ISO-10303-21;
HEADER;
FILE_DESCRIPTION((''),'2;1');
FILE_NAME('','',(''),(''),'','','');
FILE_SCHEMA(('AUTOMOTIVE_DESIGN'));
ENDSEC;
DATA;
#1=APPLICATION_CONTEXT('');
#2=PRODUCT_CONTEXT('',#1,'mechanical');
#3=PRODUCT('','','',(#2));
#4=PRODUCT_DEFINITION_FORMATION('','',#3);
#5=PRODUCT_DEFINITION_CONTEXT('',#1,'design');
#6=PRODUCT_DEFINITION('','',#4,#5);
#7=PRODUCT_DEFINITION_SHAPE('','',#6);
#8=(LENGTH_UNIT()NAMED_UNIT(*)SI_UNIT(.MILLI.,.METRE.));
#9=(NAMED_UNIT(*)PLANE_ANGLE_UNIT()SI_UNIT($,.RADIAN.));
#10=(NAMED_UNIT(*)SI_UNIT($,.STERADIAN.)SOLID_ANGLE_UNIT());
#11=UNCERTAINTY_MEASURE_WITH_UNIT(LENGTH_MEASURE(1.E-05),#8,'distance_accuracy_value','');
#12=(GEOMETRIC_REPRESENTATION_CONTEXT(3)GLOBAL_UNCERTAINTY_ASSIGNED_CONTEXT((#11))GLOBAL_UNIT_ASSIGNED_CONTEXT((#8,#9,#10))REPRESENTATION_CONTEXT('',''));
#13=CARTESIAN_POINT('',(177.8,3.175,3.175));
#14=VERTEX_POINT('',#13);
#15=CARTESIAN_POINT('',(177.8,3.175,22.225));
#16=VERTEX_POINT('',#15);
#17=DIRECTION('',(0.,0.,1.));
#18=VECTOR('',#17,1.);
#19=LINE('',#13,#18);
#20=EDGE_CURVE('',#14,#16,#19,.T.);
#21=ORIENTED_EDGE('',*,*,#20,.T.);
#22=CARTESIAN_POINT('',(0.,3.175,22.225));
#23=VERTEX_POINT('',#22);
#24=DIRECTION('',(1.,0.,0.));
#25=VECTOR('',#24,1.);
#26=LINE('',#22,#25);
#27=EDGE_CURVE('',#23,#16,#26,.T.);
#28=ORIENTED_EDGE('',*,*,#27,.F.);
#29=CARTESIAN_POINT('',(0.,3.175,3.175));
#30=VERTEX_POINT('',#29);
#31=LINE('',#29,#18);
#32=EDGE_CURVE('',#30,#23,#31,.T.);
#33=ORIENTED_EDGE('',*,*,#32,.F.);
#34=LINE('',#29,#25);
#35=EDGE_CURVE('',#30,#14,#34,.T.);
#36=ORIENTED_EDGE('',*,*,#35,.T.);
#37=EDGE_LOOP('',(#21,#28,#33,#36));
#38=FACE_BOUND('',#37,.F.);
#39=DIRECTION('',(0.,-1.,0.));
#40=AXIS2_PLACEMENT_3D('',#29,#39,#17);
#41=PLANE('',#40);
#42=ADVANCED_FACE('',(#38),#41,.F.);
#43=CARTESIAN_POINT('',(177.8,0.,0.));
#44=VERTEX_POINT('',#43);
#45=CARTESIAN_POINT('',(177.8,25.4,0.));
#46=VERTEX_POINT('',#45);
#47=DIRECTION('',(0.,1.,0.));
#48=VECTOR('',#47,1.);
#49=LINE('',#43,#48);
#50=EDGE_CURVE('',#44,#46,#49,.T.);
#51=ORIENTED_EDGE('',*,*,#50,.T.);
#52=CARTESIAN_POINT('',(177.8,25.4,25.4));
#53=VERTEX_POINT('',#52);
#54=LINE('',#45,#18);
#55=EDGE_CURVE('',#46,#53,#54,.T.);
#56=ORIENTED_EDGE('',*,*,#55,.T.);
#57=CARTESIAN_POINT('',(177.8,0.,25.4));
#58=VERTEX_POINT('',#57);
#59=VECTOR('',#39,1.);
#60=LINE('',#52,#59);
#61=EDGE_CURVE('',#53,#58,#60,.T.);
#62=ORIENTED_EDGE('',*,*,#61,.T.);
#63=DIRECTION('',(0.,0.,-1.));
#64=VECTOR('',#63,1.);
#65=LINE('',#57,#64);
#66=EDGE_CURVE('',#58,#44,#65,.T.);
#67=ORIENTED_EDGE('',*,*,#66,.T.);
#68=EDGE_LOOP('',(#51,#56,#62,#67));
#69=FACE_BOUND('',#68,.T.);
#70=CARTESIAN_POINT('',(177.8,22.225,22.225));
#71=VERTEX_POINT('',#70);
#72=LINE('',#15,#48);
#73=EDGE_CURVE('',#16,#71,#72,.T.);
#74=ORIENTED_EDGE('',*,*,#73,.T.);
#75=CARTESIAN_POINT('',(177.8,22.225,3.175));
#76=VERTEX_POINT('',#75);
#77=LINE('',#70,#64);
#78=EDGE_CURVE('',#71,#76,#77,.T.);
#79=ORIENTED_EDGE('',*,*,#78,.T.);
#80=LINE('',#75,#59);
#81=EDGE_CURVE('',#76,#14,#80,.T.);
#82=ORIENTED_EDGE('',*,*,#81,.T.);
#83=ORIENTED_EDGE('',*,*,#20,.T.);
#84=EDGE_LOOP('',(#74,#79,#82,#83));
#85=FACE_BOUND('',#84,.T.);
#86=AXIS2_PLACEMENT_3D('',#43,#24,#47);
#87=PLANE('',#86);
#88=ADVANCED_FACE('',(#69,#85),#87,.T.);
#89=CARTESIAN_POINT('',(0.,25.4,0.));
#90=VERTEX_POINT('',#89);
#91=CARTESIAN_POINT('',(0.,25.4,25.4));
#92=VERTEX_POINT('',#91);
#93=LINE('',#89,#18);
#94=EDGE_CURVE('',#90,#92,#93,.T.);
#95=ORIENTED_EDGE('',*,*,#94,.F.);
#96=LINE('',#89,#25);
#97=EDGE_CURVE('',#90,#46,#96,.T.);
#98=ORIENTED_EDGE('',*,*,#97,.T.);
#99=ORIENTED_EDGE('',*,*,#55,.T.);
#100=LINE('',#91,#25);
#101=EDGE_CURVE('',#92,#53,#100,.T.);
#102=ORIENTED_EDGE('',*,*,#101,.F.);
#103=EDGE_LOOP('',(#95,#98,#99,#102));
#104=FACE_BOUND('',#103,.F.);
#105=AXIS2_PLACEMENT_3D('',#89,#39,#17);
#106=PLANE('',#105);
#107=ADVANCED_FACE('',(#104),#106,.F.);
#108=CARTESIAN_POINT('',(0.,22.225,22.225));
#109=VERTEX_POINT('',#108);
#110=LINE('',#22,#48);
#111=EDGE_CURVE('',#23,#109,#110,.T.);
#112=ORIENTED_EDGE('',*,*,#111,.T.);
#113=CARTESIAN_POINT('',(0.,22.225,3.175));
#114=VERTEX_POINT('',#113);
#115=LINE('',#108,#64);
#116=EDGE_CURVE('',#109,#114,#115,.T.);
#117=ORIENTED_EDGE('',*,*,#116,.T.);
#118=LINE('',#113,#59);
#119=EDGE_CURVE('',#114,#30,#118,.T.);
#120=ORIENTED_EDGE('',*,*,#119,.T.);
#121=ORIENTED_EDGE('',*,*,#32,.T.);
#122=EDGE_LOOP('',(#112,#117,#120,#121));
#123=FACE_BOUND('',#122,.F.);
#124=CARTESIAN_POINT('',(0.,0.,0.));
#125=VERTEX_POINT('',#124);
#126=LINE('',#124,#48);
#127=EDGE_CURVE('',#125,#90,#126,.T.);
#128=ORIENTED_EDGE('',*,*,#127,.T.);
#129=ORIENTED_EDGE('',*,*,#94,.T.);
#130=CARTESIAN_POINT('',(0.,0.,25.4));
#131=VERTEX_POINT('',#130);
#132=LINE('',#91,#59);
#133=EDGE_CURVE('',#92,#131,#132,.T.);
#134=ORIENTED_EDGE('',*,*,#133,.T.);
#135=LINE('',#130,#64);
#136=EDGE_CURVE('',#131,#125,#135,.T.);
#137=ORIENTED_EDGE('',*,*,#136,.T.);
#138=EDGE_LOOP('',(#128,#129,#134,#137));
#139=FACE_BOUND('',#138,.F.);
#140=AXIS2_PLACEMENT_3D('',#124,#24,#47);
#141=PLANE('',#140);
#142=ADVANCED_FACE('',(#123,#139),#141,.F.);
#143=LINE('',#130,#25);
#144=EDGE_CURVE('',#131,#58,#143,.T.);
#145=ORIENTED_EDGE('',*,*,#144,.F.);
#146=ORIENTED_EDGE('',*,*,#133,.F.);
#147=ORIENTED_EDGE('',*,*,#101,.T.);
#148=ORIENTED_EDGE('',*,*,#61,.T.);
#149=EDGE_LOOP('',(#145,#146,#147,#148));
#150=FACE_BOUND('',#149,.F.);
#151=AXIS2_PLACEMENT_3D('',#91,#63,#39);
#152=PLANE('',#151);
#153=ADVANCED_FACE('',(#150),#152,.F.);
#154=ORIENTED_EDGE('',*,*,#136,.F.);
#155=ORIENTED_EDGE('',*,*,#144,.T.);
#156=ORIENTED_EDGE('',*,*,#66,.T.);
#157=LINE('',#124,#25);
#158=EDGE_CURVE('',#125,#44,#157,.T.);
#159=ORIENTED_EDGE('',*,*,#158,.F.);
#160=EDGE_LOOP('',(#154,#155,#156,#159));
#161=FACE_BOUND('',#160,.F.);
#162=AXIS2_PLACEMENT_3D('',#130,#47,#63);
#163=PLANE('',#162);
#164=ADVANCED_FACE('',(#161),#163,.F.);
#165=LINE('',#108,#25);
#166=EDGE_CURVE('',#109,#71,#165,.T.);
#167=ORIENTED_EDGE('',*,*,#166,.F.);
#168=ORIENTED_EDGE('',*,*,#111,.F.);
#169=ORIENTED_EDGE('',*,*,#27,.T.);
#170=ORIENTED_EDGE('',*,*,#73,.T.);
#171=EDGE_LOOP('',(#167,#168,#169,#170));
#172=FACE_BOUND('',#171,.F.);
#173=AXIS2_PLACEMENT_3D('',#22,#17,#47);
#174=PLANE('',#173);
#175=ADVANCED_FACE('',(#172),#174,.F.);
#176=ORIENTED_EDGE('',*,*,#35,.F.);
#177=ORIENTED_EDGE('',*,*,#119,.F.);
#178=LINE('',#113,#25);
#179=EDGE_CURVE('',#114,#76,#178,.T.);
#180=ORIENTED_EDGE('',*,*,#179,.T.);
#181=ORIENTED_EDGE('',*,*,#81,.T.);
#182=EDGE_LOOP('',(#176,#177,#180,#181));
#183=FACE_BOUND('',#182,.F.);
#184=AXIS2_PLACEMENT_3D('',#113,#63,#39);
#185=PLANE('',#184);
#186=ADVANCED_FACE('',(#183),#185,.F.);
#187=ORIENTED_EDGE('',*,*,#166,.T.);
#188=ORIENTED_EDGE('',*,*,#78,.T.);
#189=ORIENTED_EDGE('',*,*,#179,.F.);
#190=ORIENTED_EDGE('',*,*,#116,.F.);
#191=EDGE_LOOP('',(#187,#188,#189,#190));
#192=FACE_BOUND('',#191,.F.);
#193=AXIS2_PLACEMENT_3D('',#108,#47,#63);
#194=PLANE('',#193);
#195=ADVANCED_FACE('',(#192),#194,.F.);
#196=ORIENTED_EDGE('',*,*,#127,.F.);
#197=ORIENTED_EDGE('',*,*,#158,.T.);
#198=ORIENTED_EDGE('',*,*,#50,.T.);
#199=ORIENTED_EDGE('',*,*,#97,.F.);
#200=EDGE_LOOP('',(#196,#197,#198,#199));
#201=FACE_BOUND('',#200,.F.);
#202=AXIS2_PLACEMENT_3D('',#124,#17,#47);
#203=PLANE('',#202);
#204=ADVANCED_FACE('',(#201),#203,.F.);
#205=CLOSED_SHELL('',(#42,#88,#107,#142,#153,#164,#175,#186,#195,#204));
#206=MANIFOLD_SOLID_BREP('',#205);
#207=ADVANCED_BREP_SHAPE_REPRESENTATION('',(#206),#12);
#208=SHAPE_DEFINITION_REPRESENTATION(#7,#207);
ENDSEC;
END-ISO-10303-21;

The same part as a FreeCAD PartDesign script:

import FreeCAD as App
import Part
import Sketcher
from FreeCAD import Vector
Q = App.Units.Quantity

doc = App.newDocument("Part")
params = doc.addObject("Spreadsheet::Sheet", "Params")
for row, (alias, value) in enumerate([
    ("sketch1_width", "1 in"),
    ("pad1_length", "7 in"),
], start=1):
    params.set(f"A{row}", alias)
    params.set(f"B{row}", "=" + value)
    params.setAlias(f"B{row}", alias)

body = doc.addObject("PartDesign::Body", "Body")

sketch1 = doc.addObject("Sketcher::SketchObject", "Sketch")
body.addObject(sketch1)
sketch1.AttachmentSupport = (doc.YZ_Plane, [""])
sketch1.MapMode = "FlatFace"
sketch1.addGeometry(Part.LineSegment(Vector(0, 25, 0), Vector(0, 0, 0)), False)
sketch1.addGeometry(Part.LineSegment(Vector(0, 0, 0), Vector(25, 0, 0)), False)
sketch1.addGeometry(Part.LineSegment(Vector(25, 0, 0), Vector(25, 25, 0)), False)
sketch1.addGeometry(Part.LineSegment(Vector(25, 25, 0), Vector(0, 25, 0)), False)
sketch1.addGeometry(Part.LineSegment(Vector(3, 3, 0), Vector(3, 22, 0)), False)
sketch1.addGeometry(Part.LineSegment(Vector(3, 22, 0), Vector(22, 22, 0)), False)
sketch1.addGeometry(Part.LineSegment(Vector(22, 22, 0), Vector(22, 3, 0)), False)
sketch1.addGeometry(Part.LineSegment(Vector(22, 3, 0), Vector(3, 3, 0)), False)
sketch1.addConstraint(Sketcher.Constraint("Coincident", 0, 2, 1, 1))
sketch1.addConstraint(Sketcher.Constraint("Coincident", 1, 2, 2, 1))
sketch1.addConstraint(Sketcher.Constraint("Coincident", 2, 2, 3, 1))
sketch1.addConstraint(Sketcher.Constraint("Coincident", 3, 2, 0, 1))
sketch1.addConstraint(Sketcher.Constraint("Coincident", 4, 2, 5, 1))
sketch1.addConstraint(Sketcher.Constraint("Coincident", 5, 2, 6, 1))
sketch1.addConstraint(Sketcher.Constraint("Coincident", 6, 2, 7, 1))
sketch1.addConstraint(Sketcher.Constraint("Coincident", 7, 2, 4, 1))
sketch1.addConstraint(Sketcher.Constraint("Vertical", 0))
sketch1.addConstraint(Sketcher.Constraint("Horizontal", 1))
sketch1.addConstraint(Sketcher.Constraint("Vertical", 2))
sketch1.addConstraint(Sketcher.Constraint("Horizontal", 3))
sketch1.addConstraint(Sketcher.Constraint("Vertical", 4))
sketch1.addConstraint(Sketcher.Constraint("Horizontal", 5))
sketch1.addConstraint(Sketcher.Constraint("Vertical", 6))
sketch1.addConstraint(Sketcher.Constraint("Horizontal", 7))
sketch1.addConstraint(Sketcher.Constraint("Coincident", 0, 2, -1, 1))
sketch1.addConstraint(Sketcher.Constraint("Equal", 3, 0))
sketch1.addConstraint(Sketcher.Constraint("Equal", 7, 4))
sketch1.addConstraint(Sketcher.Constraint("DistanceX", 1, 1, 1, 2, Q("1 in")))
sketch1.addConstraint(Sketcher.Constraint("DistanceX", -1, 1, 4, 2, Q("0.125 in")))
sketch1.addConstraint(Sketcher.Constraint("DistanceY", -1, 1, 6, 2, Q("0.125 in")))
sketch1.addConstraint(Sketcher.Constraint("DistanceY", 4, 2, 3, 2, Q("0.125 in")))
sketch1.setExpression("Constraints[19]", "Params.sketch1_width")
pad1 = doc.addObject("PartDesign::Pad", "Pad")
body.addObject(pad1)
pad1.Profile = sketch1
pad1.setExpression("Length", "Params.pad1_length")

doc.recompute()
